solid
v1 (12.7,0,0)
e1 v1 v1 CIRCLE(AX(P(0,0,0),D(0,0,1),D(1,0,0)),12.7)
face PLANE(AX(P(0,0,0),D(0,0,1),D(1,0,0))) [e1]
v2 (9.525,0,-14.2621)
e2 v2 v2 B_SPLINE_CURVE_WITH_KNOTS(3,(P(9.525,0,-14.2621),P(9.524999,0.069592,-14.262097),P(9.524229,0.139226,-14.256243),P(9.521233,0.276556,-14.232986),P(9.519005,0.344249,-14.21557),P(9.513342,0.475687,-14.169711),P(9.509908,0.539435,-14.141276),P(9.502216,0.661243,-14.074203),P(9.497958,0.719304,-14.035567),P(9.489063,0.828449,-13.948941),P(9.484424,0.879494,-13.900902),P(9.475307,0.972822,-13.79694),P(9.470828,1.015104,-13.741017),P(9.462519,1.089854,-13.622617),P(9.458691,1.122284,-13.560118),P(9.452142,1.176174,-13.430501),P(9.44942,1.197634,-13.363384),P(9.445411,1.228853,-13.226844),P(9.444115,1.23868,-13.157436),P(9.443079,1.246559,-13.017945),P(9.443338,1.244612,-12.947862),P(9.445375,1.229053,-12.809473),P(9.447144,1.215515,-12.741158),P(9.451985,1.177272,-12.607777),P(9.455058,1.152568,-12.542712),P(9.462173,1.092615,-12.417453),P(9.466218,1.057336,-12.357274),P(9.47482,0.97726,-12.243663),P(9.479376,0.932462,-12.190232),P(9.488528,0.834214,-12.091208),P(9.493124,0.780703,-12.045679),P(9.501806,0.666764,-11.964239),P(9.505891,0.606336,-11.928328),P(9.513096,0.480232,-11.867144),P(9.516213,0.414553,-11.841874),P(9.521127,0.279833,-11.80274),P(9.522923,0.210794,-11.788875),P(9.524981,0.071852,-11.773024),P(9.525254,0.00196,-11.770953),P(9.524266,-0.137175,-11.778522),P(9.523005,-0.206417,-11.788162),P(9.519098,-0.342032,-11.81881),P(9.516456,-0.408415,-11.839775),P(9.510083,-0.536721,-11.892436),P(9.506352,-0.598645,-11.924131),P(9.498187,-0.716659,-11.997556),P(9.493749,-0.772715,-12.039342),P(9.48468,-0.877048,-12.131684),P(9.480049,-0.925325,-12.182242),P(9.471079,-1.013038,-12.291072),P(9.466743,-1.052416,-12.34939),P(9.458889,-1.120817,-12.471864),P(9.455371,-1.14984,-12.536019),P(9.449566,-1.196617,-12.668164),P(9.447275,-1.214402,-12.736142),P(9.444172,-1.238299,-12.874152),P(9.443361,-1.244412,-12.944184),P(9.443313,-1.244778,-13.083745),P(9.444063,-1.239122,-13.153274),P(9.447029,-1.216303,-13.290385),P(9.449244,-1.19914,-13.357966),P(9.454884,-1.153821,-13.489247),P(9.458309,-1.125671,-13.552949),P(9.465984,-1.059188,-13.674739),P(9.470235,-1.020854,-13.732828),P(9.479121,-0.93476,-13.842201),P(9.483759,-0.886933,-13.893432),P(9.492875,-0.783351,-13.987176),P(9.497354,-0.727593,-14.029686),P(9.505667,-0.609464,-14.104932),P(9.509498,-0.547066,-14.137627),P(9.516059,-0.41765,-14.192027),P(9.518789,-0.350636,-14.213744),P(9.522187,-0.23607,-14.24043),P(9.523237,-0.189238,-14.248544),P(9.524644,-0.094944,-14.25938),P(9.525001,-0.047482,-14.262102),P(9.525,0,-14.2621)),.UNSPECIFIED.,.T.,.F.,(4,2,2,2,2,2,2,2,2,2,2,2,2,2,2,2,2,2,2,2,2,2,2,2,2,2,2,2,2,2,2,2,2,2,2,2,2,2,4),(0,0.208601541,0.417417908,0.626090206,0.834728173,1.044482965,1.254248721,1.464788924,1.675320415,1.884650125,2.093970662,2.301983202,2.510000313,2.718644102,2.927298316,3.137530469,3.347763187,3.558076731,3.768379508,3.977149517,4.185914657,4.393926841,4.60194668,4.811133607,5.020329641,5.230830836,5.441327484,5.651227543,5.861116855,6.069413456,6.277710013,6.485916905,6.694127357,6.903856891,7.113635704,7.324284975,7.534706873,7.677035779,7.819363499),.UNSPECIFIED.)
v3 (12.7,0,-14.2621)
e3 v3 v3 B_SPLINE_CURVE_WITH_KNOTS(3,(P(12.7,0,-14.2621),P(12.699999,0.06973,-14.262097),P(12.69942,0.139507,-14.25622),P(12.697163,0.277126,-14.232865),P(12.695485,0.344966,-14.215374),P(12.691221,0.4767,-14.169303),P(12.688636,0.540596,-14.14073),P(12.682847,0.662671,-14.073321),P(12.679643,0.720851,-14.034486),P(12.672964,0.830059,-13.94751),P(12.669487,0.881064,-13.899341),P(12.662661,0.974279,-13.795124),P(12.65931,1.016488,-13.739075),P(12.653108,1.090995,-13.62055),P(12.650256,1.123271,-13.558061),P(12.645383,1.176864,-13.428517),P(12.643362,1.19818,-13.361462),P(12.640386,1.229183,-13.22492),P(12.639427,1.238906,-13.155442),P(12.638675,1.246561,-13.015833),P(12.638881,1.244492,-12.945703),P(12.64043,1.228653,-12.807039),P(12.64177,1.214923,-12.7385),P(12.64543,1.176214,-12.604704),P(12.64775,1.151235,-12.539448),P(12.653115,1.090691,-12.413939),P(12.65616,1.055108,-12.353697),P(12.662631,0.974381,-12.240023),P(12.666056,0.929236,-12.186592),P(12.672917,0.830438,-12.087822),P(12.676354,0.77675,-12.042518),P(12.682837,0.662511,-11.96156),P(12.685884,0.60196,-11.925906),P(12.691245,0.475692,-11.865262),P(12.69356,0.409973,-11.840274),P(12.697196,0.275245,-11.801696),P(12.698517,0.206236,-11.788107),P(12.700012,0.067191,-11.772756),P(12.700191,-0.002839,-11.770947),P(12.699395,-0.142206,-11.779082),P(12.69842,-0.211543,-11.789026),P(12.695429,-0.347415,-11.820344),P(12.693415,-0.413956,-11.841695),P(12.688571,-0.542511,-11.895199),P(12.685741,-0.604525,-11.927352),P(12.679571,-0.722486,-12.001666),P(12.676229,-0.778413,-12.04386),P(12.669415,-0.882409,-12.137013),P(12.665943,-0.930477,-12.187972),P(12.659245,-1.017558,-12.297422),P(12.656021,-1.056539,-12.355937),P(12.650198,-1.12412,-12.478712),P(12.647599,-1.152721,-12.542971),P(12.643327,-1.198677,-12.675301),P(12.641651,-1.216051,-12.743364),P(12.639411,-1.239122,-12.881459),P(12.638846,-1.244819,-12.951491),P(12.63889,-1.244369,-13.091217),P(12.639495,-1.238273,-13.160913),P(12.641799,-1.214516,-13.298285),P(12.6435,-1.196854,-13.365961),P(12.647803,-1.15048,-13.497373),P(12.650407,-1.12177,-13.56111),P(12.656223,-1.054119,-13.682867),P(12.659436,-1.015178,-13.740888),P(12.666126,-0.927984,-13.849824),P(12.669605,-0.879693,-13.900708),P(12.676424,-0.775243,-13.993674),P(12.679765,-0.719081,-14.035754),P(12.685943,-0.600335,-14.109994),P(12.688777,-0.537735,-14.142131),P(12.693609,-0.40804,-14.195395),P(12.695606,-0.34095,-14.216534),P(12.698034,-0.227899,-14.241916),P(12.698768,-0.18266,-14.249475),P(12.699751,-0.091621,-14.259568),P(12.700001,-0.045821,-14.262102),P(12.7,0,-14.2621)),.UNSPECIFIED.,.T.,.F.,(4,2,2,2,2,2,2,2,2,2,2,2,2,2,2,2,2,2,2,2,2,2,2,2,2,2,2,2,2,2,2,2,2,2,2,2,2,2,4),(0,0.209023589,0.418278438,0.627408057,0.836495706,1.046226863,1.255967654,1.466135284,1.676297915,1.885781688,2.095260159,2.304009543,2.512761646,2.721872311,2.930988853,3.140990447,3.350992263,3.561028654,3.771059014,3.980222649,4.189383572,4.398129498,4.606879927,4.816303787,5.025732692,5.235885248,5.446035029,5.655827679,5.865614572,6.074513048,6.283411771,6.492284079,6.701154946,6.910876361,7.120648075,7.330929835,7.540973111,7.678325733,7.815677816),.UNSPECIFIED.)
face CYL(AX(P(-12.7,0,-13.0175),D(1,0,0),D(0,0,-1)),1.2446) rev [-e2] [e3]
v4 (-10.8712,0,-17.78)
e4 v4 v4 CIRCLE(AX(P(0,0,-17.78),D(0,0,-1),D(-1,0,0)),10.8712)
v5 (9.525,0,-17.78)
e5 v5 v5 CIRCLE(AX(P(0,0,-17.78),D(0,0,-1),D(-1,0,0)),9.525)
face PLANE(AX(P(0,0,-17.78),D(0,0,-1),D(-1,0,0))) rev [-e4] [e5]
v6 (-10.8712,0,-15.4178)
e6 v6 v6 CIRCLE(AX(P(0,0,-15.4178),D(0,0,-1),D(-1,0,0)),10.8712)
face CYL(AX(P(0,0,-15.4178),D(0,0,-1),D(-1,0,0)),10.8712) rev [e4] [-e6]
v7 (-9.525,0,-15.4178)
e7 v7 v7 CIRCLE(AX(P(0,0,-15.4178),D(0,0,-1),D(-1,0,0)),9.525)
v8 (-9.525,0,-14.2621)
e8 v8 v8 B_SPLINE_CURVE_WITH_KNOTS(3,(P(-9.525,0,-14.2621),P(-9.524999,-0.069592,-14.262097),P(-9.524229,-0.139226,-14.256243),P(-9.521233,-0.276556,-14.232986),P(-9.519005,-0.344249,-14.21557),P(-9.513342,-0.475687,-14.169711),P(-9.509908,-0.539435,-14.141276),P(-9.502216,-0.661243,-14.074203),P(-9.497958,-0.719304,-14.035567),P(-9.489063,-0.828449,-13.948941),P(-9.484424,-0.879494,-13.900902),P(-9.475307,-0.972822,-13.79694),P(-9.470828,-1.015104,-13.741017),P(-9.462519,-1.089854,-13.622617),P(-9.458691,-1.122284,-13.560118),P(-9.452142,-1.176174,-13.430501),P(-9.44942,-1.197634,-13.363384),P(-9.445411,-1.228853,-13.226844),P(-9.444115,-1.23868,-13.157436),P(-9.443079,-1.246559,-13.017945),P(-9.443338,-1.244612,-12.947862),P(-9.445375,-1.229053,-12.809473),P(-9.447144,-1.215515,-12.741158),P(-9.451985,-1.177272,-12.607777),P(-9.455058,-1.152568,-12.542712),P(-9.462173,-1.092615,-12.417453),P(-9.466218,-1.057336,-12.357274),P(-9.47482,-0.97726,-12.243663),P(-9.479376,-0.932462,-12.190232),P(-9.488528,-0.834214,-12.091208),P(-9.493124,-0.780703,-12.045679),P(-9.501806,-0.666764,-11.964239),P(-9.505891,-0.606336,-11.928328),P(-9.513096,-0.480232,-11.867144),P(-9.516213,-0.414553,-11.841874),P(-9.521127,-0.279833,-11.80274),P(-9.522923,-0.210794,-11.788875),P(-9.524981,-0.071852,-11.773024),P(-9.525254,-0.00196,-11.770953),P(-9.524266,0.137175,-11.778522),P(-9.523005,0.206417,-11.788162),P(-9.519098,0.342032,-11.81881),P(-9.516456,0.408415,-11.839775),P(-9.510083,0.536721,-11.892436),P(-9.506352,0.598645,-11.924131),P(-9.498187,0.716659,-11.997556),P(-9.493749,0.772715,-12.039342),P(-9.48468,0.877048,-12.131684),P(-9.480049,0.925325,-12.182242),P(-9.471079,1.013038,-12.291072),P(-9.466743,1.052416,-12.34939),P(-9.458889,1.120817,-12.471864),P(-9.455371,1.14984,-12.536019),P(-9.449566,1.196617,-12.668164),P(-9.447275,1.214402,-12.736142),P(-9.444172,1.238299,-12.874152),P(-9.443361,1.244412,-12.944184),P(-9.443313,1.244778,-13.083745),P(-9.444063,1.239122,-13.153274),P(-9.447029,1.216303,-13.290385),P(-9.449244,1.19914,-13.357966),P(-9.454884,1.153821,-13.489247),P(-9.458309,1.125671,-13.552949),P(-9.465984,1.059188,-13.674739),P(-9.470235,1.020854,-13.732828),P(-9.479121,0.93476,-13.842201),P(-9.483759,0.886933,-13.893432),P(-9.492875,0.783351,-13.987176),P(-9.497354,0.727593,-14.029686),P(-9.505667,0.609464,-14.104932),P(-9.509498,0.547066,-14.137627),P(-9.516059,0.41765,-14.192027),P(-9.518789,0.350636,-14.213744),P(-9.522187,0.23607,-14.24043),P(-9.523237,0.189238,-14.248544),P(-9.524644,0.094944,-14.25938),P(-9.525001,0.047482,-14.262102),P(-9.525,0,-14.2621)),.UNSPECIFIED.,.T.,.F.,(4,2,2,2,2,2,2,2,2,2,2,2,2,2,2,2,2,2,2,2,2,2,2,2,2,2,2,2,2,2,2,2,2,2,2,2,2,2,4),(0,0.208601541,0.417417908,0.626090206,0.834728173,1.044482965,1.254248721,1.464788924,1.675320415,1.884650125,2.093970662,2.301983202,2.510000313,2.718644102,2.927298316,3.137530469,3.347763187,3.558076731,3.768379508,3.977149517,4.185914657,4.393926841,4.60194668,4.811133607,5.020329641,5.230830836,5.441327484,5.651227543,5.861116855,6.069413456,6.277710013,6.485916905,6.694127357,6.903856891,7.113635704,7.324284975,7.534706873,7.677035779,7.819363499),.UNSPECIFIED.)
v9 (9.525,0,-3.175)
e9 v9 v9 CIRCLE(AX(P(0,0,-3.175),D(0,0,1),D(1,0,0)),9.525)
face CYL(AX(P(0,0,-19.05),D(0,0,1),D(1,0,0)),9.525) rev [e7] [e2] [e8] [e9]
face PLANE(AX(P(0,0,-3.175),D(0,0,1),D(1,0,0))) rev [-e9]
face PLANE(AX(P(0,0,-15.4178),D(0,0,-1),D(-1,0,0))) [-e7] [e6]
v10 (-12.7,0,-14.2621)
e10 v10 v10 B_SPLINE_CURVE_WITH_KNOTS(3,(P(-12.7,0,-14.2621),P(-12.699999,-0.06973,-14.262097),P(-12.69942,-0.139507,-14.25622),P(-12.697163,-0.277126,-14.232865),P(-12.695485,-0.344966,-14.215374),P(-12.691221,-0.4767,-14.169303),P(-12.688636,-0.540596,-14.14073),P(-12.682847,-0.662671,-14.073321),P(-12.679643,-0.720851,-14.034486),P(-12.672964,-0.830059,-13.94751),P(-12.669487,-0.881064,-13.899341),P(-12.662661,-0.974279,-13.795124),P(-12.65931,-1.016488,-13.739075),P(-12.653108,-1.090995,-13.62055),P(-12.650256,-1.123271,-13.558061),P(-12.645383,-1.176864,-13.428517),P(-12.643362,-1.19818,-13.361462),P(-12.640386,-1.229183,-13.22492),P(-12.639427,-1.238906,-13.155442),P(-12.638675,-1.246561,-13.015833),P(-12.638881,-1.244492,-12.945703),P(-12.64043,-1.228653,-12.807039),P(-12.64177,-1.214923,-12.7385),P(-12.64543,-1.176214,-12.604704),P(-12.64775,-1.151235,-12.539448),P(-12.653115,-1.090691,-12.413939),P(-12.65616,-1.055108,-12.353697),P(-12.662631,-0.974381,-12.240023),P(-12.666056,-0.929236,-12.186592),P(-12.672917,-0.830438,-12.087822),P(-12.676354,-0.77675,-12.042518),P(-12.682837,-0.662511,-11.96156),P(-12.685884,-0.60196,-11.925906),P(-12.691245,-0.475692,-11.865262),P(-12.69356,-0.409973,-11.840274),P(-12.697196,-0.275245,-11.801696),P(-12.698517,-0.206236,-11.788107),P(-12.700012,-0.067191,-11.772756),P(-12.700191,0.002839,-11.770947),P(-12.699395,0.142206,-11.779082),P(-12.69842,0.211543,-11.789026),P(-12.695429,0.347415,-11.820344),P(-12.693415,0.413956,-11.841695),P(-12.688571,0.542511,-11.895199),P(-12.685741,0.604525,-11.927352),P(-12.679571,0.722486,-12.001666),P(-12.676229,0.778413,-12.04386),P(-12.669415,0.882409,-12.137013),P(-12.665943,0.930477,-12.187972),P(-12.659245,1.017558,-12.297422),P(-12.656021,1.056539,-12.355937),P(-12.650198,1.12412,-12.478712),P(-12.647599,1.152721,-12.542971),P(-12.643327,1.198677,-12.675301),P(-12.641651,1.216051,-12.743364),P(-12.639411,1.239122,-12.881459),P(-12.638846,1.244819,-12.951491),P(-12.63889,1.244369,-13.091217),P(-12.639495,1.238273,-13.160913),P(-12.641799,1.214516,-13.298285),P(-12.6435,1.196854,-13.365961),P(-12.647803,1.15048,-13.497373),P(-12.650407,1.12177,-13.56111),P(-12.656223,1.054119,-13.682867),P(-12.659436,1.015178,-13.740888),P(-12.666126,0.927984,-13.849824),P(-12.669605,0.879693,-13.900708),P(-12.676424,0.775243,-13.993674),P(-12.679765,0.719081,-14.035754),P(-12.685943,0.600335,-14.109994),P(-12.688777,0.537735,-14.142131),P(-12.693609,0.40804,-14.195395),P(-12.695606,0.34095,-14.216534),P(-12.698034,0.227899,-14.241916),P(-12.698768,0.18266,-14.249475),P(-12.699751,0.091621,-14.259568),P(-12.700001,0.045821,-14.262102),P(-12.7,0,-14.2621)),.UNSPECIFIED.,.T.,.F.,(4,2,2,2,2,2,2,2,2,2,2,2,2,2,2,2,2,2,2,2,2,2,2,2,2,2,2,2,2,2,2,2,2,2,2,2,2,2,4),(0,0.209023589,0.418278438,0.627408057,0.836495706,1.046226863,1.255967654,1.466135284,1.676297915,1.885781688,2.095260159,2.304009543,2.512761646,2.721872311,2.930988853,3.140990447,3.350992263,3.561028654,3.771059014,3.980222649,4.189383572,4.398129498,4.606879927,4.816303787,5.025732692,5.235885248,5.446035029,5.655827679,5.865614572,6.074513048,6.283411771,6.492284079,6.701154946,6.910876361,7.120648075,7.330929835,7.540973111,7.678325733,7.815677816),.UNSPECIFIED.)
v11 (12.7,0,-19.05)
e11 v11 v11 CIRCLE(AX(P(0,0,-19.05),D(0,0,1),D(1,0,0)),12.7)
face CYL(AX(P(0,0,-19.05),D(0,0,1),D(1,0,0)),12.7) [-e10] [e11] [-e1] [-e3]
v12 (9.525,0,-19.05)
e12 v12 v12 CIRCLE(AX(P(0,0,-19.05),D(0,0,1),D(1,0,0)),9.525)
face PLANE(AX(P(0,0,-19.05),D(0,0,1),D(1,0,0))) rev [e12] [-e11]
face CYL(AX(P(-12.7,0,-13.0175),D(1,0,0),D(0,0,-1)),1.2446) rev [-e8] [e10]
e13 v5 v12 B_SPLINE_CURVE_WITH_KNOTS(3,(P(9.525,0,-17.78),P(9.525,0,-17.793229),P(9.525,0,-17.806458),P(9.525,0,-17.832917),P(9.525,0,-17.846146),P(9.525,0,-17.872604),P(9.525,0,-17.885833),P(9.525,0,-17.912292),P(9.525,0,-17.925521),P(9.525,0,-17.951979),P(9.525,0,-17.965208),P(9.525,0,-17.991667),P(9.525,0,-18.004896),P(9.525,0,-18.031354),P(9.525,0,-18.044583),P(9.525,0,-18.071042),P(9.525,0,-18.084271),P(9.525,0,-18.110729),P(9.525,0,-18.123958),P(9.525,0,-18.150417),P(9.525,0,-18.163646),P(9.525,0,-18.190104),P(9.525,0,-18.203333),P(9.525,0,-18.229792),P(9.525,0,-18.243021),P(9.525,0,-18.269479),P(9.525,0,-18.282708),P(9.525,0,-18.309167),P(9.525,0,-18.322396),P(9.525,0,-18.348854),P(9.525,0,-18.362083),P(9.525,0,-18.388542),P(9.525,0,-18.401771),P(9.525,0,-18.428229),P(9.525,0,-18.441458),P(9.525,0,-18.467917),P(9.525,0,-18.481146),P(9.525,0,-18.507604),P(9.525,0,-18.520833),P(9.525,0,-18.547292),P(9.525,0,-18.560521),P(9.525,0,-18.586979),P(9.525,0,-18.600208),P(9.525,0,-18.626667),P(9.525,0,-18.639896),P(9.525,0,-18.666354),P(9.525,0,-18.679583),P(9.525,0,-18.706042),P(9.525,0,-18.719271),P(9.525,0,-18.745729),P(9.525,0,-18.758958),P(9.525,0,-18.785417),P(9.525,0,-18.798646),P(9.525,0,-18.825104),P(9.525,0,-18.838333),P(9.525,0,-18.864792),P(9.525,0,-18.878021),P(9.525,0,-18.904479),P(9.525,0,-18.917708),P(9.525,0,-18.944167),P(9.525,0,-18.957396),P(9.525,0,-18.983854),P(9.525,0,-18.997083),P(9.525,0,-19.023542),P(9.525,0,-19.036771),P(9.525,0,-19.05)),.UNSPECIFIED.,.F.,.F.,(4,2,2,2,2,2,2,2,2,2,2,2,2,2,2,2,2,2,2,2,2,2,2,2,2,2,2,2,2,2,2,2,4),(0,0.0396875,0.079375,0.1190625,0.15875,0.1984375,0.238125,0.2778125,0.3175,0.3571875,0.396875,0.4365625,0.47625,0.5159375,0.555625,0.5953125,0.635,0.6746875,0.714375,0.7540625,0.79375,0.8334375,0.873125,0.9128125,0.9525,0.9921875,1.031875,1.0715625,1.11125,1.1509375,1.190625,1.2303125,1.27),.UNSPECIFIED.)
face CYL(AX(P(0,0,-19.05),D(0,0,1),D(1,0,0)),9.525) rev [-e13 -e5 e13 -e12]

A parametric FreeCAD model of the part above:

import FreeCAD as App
import Part
import Sketcher

V = App.Vector
Q = App.Units.Quantity


def faces_at(feature, points):
    """Names of the faces that lie closest to the given points."""
    faces = feature.Shape.Faces
    near = lambda p: min(range(len(faces)), key=lambda i: faces[i].distToShape(Part.Vertex(*p))[0])
    return sorted({f"Face{near(p) + 1}" for p in points})

doc = App.newDocument("Part")
body = doc.addObject("PartDesign::Body", "Body")

# Sketch on XY plane
sketch1 = body.newObject("Sketcher::SketchObject", "Sketch")
sketch1.AttachmentSupport = (doc.getObject("XY_Plane"), [""])
sketch1.MapMode = "FlatFace"
sketch1.addGeometry(Part.Circle(V(0, 0, 0), V(0, 0, 1), 12.7), False)
sketch1.addConstraint([
    Sketcher.Constraint("Coincident", 0, 3, -1, 1),
    Sketcher.Constraint("Diameter", 0, Q("1 in")),
])
pad1 = body.newObject("PartDesign::Pad", "Pad")
pad1.Profile = sketch1
pad1.Length = Q("0.75 in")
pad1.Reversed = True
doc.recompute()

thickness = body.newObject("PartDesign::Thickness", "Thickness")
thickness.Base = (pad1, faces_at(pad1, [(0, 0, -19.05)]))
thickness.Value = Q("0.125 in")
thickness.Reversed = True
thickness.Join = "Intersection"

# Sketch on YZ plane
sketch2 = body.newObject("Sketcher::SketchObject", "Sketch001")
sketch2.AttachmentSupport = (doc.getObject("YZ_Plane"), [""])
sketch2.MapMode = "FlatFace"
sketch2.addGeometry(Part.Circle(V(0, -13.0175, 0), V(0, 0, 1), 1.2446), False)
sketch2.addConstraint([
    Sketcher.Constraint("PointOnObject", 0, 3, -2),
    Sketcher.Constraint("Diameter", 0, Q("0.098 in")),
    Sketcher.Constraint("DistanceY", 0, 3, -1, 1, Q("0.5125 in")),
])
pocket1 = body.newObject("PartDesign::Pocket", "Pocket")
pocket1.Profile = sketch2
pocket1.Type = "ThroughAll"
pocket1.Midplane = True

# Sketch on XY plane
sketch3 = body.newObject("Sketcher::SketchObject", "Sketch002")
sketch3.AttachmentSupport = (doc.getObject("XY_Plane"), [""])
sketch3.MapMode = "FlatFace"
sketch3.AttachmentOffset = App.Placement(V(0, 0, -0.7 * 25.4), App.Rotation())
sketch3.addGeometry([
    Part.Circle(V(0, 0, 0), V(0, 0, 1), 10.8712),
    Part.Circle(V(0, 0, 0), V(0, 0, 1), 9.525),
], False)
sketch3.addConstraint([
    Sketcher.Constraint("Coincident", 0, 3, -1, 1),
    Sketcher.Constraint("Coincident", 1, 3, -1, 1),
    Sketcher.Constraint("Diameter", 1, Q("0.75 in")),
    Sketcher.Constraint("Diameter", 0, Q("0.856 in")),
])
pocket2 = body.newObject("PartDesign::Pocket", "Pocket001")
pocket2.Profile = sketch3
pocket2.Length = Q("0.093 in")
pocket2.Reversed = True

doc.recompute()
